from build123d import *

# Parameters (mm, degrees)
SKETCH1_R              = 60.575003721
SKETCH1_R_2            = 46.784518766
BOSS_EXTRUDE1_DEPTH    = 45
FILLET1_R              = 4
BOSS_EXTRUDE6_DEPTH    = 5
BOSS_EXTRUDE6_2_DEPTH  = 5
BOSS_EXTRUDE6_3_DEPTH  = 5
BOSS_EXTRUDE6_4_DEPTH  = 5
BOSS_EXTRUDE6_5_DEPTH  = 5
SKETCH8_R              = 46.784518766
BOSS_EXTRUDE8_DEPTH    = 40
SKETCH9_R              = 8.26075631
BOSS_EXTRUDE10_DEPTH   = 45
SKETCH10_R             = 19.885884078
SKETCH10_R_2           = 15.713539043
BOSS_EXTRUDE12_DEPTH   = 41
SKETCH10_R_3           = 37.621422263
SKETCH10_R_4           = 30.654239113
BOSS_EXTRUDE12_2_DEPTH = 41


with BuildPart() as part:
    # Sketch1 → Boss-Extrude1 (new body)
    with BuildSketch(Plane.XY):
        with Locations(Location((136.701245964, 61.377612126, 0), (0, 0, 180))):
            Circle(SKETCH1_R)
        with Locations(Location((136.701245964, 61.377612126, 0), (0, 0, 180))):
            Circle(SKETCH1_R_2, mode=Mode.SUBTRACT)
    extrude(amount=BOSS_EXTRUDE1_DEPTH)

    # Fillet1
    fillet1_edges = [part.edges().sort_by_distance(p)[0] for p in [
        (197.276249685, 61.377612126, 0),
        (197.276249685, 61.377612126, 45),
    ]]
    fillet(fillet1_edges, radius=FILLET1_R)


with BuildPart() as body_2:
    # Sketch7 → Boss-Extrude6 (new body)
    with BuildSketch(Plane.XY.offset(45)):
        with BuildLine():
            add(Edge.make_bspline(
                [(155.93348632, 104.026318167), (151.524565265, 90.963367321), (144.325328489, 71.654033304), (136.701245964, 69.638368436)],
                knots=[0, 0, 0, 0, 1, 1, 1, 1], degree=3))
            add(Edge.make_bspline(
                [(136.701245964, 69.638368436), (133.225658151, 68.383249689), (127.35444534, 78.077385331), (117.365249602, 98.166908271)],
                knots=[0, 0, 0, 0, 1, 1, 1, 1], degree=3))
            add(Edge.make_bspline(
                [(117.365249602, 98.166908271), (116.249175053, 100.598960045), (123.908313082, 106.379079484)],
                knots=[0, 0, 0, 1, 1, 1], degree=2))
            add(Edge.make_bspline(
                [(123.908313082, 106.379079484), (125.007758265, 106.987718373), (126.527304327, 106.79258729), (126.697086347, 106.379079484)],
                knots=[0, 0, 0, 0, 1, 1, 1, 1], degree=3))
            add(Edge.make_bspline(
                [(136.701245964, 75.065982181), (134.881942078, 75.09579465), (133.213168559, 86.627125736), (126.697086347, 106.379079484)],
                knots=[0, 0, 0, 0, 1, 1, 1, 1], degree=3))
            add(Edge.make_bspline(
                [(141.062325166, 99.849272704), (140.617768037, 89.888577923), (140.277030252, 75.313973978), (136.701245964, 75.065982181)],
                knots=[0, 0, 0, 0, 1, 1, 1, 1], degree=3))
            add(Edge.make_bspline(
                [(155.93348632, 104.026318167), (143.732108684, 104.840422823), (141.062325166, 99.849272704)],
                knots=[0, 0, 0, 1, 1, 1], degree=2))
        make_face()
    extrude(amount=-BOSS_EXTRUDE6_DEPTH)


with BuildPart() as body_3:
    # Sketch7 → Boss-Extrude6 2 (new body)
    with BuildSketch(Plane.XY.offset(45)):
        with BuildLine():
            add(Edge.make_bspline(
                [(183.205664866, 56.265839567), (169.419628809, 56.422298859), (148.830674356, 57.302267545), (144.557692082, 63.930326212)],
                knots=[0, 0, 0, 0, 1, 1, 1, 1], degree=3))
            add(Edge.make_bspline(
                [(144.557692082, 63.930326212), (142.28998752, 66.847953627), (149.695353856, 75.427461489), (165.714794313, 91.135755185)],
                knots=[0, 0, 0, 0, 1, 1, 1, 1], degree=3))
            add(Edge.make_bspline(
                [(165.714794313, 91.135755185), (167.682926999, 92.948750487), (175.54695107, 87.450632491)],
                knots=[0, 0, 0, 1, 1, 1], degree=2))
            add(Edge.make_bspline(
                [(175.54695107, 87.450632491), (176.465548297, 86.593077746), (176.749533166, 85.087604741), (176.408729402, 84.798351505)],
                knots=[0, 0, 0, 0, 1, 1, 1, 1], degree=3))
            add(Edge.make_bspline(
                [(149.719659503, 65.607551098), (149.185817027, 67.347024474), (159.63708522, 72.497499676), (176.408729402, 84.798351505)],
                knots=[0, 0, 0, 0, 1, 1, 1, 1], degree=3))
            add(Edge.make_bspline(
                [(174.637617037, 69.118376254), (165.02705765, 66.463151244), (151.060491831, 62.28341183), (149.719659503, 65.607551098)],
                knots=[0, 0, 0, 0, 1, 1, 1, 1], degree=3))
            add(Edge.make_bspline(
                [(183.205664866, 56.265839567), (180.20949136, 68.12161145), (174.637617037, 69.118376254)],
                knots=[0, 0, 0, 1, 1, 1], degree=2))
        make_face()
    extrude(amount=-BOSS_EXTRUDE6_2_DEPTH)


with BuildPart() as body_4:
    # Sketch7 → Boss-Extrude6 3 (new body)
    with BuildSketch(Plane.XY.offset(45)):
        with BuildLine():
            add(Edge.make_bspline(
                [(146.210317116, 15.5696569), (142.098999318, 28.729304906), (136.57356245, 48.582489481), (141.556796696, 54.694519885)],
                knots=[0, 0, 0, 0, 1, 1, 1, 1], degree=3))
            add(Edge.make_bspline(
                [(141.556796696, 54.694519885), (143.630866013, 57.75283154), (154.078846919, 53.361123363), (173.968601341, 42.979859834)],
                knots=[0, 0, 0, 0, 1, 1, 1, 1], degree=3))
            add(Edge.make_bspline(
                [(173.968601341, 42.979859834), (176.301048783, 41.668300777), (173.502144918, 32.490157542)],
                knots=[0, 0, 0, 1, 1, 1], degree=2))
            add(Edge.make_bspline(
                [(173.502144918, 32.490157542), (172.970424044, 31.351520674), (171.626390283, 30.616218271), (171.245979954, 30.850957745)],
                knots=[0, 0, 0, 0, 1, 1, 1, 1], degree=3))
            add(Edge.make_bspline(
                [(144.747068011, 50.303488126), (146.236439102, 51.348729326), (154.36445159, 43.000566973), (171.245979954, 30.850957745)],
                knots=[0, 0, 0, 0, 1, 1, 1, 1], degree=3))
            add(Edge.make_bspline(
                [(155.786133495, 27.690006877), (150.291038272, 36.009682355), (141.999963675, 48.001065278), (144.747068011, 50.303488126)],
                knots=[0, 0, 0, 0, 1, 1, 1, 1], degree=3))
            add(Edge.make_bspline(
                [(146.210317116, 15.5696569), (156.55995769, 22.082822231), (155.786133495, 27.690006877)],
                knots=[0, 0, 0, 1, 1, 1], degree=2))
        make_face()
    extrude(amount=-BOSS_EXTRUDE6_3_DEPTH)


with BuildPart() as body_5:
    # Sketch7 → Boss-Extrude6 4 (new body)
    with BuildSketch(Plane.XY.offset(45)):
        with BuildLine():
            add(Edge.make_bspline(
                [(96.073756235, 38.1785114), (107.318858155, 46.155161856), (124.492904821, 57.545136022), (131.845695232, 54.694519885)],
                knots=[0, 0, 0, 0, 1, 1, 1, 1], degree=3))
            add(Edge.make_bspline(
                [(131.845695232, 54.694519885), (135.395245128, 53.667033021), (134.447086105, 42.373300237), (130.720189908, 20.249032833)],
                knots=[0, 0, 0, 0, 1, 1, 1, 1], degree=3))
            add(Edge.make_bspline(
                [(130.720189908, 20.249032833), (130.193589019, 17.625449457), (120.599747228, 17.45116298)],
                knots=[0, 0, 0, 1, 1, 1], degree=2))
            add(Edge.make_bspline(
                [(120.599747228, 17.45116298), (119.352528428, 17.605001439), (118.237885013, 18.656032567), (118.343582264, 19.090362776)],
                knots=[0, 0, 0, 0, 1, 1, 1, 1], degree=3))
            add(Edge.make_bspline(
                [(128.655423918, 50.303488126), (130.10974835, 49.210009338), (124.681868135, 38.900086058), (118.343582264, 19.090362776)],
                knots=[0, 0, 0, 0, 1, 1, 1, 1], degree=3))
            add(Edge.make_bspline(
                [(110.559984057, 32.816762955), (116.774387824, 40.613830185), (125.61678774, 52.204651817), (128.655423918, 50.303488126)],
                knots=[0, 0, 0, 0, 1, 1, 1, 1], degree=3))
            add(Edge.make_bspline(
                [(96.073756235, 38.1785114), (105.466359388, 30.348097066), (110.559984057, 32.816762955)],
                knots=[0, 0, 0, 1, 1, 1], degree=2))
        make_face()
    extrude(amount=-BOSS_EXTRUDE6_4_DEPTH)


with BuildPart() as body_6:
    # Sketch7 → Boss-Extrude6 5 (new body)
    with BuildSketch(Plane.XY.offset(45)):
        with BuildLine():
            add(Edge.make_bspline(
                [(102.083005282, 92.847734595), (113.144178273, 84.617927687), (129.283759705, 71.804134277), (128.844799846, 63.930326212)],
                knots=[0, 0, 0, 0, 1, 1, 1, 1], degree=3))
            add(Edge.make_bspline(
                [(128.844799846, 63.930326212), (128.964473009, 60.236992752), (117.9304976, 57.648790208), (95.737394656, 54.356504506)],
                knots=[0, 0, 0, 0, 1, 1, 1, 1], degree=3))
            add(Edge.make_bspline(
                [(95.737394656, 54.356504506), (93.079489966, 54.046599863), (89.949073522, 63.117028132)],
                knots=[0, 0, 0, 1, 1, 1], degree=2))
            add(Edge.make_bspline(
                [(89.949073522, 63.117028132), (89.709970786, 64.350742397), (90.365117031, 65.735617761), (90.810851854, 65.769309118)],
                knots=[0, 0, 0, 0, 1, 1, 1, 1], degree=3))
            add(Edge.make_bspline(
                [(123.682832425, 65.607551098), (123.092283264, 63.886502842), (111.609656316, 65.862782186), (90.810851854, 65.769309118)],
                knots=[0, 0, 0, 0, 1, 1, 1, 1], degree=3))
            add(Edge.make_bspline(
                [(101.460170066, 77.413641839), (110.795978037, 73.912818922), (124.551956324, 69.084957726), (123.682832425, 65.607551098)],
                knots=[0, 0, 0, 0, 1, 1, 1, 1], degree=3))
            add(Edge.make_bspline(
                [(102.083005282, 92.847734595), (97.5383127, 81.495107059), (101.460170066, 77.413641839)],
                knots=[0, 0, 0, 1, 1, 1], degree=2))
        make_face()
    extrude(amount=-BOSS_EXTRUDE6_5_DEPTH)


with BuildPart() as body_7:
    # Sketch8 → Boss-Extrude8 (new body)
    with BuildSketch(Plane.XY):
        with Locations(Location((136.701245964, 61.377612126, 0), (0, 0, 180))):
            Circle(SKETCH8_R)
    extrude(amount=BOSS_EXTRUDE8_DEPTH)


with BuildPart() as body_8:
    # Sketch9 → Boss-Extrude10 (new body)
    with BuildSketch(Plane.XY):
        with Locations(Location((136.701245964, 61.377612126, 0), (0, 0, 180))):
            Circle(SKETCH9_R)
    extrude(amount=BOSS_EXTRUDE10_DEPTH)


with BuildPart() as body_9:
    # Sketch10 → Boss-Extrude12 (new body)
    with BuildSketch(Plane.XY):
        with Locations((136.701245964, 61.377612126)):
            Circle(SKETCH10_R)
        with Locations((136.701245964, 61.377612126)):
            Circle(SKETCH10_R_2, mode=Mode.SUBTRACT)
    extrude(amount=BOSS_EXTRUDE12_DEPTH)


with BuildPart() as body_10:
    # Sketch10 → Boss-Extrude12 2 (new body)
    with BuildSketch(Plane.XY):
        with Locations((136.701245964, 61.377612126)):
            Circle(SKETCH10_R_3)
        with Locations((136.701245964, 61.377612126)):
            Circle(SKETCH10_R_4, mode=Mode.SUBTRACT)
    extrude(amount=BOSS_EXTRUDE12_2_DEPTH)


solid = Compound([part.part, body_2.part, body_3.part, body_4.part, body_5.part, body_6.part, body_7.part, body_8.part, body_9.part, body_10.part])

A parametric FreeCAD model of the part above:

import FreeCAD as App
import Part
import Sketcher


def edges_at(feature, points):
    """Names of the edges that pass closest to the given points."""
    edges = feature.Shape.Edges
    near = lambda p: min(range(len(edges)), key=lambda i: edges[i].distToShape(Part.Vertex(*p))[0])
    return sorted({f"Edge{near(p) + 1}" for p in points})

doc = App.newDocument("Part")
body = doc.addObject("PartDesign::Body", "Body")

# Sketch on XY plane
sketch1 = body.newObject("Sketcher::SketchObject", "Sketch")
sketch1.AttachmentSupport = (doc.getObject("XY_Plane"), [""])
sketch1.MapMode = "FlatFace"
sketch1.addGeometry([
    Part.Circle(App.Vector(137, 61, 0), App.Vector(0, 0, 1), 61),
    Part.Circle(App.Vector(137, 61, 0), App.Vector(0, 0, 1), 47),
], False)
sketch1.addConstraint([
    Sketcher.Constraint("Coincident", 1, 3, 0, 3),
    Sketcher.Constraint("Diameter", 0, 121.150007),
    Sketcher.Constraint("Diameter", 1, 93.569038),
    Sketcher.Constraint("DistanceX", -1, 1, 0, 3, 136.701246),
    Sketcher.Constraint("DistanceY", -1, 1, 0, 3, 61.377612),
])
pad1 = body.newObject("PartDesign::Pad", "Pad")
pad1.Profile = sketch1
pad1.Length = 45
doc.recompute()

fillet = body.newObject("PartDesign::Fillet", "Fillet")
fillet.Base = (pad1, edges_at(pad1, [(197.276, 61.378, 0), (197.276, 61.378, 45)]))
fillet.Radius = 4
body2 = doc.addObject("PartDesign::Body", "Body001")

# Sketch on XY plane
sketch2 = body2.newObject("Sketcher::SketchObject", "Sketch001")
sketch2.AttachmentSupport = (doc.getObject("XY_Plane001"), [""])
sketch2.MapMode = "FlatFace"
sketch2.AttachmentOffset = App.Placement(App.Vector(0, 0, 45), App.Rotation())
sketch2.addGeometry([
    Part.BSplineCurve([App.Vector(155.933486, 104.026318, 0), App.Vector(151.524565, 90.963367, 0), App.Vector(144.325328, 71.654033, 0), App.Vector(136.701246, 69.638368, 0)], [4, 4], [0, 1], False, 3, [1, 1, 1, 1], False),  # 0
    Part.BSplineCurve([App.Vector(155.933486, 104.026318, 0), App.Vector(143.732109, 104.840423, 0), App.Vector(141.062325, 99.849273, 0)], [3, 3], [0, 1], False, 2, [1, 1, 1], False),  # 1
    Part.BSplineCurve([App.Vector(141.062325, 99.849273, 0), App.Vector(140.617768, 89.888578, 0), App.Vector(140.27703, 75.313974, 0), App.Vector(136.701246, 75.065982, 0)], [4, 4], [0, 1], False, 3, [1, 1, 1, 1], False),  # 2
    Part.BSplineCurve([App.Vector(136.701246, 75.065982, 0), App.Vector(134.881942, 75.095795, 0), App.Vector(133.213169, 86.627126, 0), App.Vector(126.697086, 106.379079, 0)], [4, 4], [0, 1], False, 3, [1, 1, 1, 1], False),  # 3
    Part.BSplineCurve([App.Vector(123.908313, 106.379079, 0), App.Vector(125.007758, 106.987718, 0), App.Vector(126.527304, 106.792587, 0), App.Vector(126.697086, 106.379079, 0)], [4, 4], [0, 1], False, 3, [1, 1, 1, 1], False),  # 4
    Part.BSplineCurve([App.Vector(117.36525, 98.166908, 0), App.Vector(116.249175, 100.59896, 0), App.Vector(123.908313, 106.379079, 0)], [3, 3], [0, 1], False, 2, [1, 1, 1], False),  # 5
    Part.BSplineCurve([App.Vector(136.701246, 69.638368, 0), App.Vector(133.225658, 68.38325, 0), App.Vector(127.354445, 78.077385, 0), App.Vector(117.36525, 98.166908, 0)], [4, 4], [0, 1], False, 3, [1, 1, 1, 1], False),  # 6
], False)
sketch2.addConstraint([
    Sketcher.Constraint("Block", 0),
    Sketcher.Constraint("Block", 1),
    Sketcher.Constraint("Block", 2),
    Sketcher.Constraint("Block", 3),
    Sketcher.Constraint("Block", 4),
    Sketcher.Constraint("Block", 5),
    Sketcher.Constraint("Block", 6),
])
pad2 = body2.newObject("PartDesign::Pad", "Pad001")
pad2.Profile = sketch2
pad2.Length = 5
pad2.Reversed = True
body3 = doc.addObject("PartDesign::Body", "Body002")

# Sketch on XY plane
sketch3 = body3.newObject("Sketcher::SketchObject", "Sketch002")
sketch3.AttachmentSupport = (doc.getObject("XY_Plane002"), [""])
sketch3.MapMode = "FlatFace"
sketch3.AttachmentOffset = App.Placement(App.Vector(0, 0, 45), App.Rotation())
sketch3.addGeometry([
    Part.BSplineCurve([App.Vector(183.205665, 56.26584, 0), App.Vector(169.419629, 56.422299, 0), App.Vector(148.830674, 57.302268, 0), App.Vector(144.557692, 63.930326, 0)], [4, 4], [0, 1], False, 3, [1, 1, 1, 1], False),  # 0
    Part.BSplineCurve([App.Vector(183.205665, 56.26584, 0), App.Vector(180.209491, 68.121611, 0), App.Vector(174.637617, 69.118376, 0)], [3, 3], [0, 1], False, 2, [1, 1, 1], False),  # 1
    Part.BSplineCurve([App.Vector(174.637617, 69.118376, 0), App.Vector(165.027058, 66.463151, 0), App.Vector(151.060492, 62.283412, 0), App.Vector(149.71966, 65.607551, 0)], [4, 4], [0, 1], False, 3, [1, 1, 1, 1], False),  # 2
    Part.BSplineCurve([App.Vector(149.71966, 65.607551, 0), App.Vector(149.185817, 67.347024, 0), App.Vector(159.637085, 72.4975, 0), App.Vector(176.408729, 84.798352, 0)], [4, 4], [0, 1], False, 3, [1, 1, 1, 1], False),  # 3
    Part.BSplineCurve([App.Vector(175.546951, 87.450632, 0), App.Vector(176.465548, 86.593078, 0), App.Vector(176.749533, 85.087605, 0), App.Vector(176.408729, 84.798352, 0)], [4, 4], [0, 1], False, 3, [1, 1, 1, 1], False),  # 4
    Part.BSplineCurve([App.Vector(165.714794, 91.135755, 0), App.Vector(167.682927, 92.94875, 0), App.Vector(175.546951, 87.450632, 0)], [3, 3], [0, 1], False, 2, [1, 1, 1], False),  # 5
    Part.BSplineCurve([App.Vector(144.557692, 63.930326, 0), App.Vector(142.289988, 66.847954, 0), App.Vector(149.695354, 75.427461, 0), App.Vector(165.714794, 91.135755, 0)], [4, 4], [0, 1], False, 3, [1, 1, 1, 1], False),  # 6
], False)
sketch3.addConstraint([
    Sketcher.Constraint("Block", 0),
    Sketcher.Constraint("Block", 1),
    Sketcher.Constraint("Block", 2),
    Sketcher.Constraint("Block", 3),
    Sketcher.Constraint("Block", 4),
    Sketcher.Constraint("Block", 5),
    Sketcher.Constraint("Block", 6),
])
pad3 = body3.newObject("PartDesign::Pad", "Pad002")
pad3.Profile = sketch3
pad3.Length = 5
pad3.Reversed = True
body4 = doc.addObject("PartDesign::Body", "Body003")

# Sketch on XY plane
sketch4 = body4.newObject("Sketcher::SketchObject", "Sketch003")
sketch4.AttachmentSupport = (doc.getObject("XY_Plane003"), [""])
sketch4.MapMode = "FlatFace"
sketch4.AttachmentOffset = App.Placement(App.Vector(0, 0, 45), App.Rotation())
sketch4.addGeometry([
    Part.BSplineCurve([App.Vector(146.210317, 15.569657, 0), App.Vector(142.098999, 28.729305, 0), App.Vector(136.573562, 48.582489, 0), App.Vector(141.556797, 54.69452, 0)], [4, 4], [0, 1], False, 3, [1, 1, 1, 1], False),  # 0
    Part.BSplineCurve([App.Vector(146.210317, 15.569657, 0), App.Vector(156.559958, 22.082822, 0), App.Vector(155.786133, 27.690007, 0)], [3, 3], [0, 1], False, 2, [1, 1, 1], False),  # 1
    Part.BSplineCurve([App.Vector(155.786133, 27.690007, 0), App.Vector(150.291038, 36.009682, 0), App.Vector(141.999964, 48.001065, 0), App.Vector(144.747068, 50.303488, 0)], [4, 4], [0, 1], False, 3, [1, 1, 1, 1], False),  # 2
    Part.BSplineCurve([App.Vector(144.747068, 50.303488, 0), App.Vector(146.236439, 51.348729, 0), App.Vector(154.364452, 43.000567, 0), App.Vector(171.24598, 30.850958, 0)], [4, 4], [0, 1], False, 3, [1, 1, 1, 1], False),  # 3
    Part.BSplineCurve([App.Vector(173.502145, 32.490158, 0), App.Vector(172.970424, 31.351521, 0), App.Vector(171.62639, 30.616218, 0), App.Vector(171.24598, 30.850958, 0)], [4, 4], [0, 1], False, 3, [1, 1, 1, 1], False),  # 4
    Part.BSplineCurve([App.Vector(173.968601, 42.97986, 0), App.Vector(176.301049, 41.668301, 0), App.Vector(173.502145, 32.490158, 0)], [3, 3], [0, 1], False, 2, [1, 1, 1], False),  # 5
    Part.BSplineCurve([App.Vector(141.556797, 54.69452, 0), App.Vector(143.630866, 57.752832, 0), App.Vector(154.078847, 53.361123, 0), App.Vector(173.968601, 42.97986, 0)], [4, 4], [0, 1], False, 3, [1, 1, 1, 1], False),  # 6
], False)
sketch4.addConstraint([
    Sketcher.Constraint("Block", 0),
    Sketcher.Constraint("Block", 1),
    Sketcher.Constraint("Block", 2),
    Sketcher.Constraint("Block", 3),
    Sketcher.Constraint("Block", 4),
    Sketcher.Constraint("Block", 5),
    Sketcher.Constraint("Block", 6),
])
pad4 = body4.newObject("PartDesign::Pad", "Pad003")
pad4.Profile = sketch4
pad4.Length = 5
pad4.Reversed = True
body5 = doc.addObject("PartDesign::Body", "Body004")

# Sketch on XY plane
sketch5 = body5.newObject("Sketcher::SketchObject", "Sketch004")
sketch5.AttachmentSupport = (doc.getObject("XY_Plane004"), [""])
sketch5.MapMode = "FlatFace"
sketch5.AttachmentOffset = App.Placement(App.Vector(0, 0, 45), App.Rotation())
sketch5.addGeometry([
    Part.BSplineCurve([App.Vector(96.073756, 38.178511, 0), App.Vector(107.318858, 46.155162, 0), App.Vector(124.492905, 57.545136, 0), App.Vector(131.845695, 54.69452, 0)], [4, 4], [0, 1], False, 3, [1, 1, 1, 1], False),  # 0
    Part.BSplineCurve([App.Vector(96.073756, 38.178511, 0), App.Vector(105.466359, 30.348097, 0), App.Vector(110.559984, 32.816763, 0)], [3, 3], [0, 1], False, 2, [1, 1, 1], False),  # 1
    Part.BSplineCurve([App.Vector(110.559984, 32.816763, 0), App.Vector(116.774388, 40.61383, 0), App.Vector(125.616788, 52.204652, 0), App.Vector(128.655424, 50.303488, 0)], [4, 4], [0, 1], False, 3, [1, 1, 1, 1], False),  # 2
    Part.BSplineCurve([App.Vector(128.655424, 50.303488, 0), App.Vector(130.109748, 49.210009, 0), App.Vector(124.681868, 38.900086, 0), App.Vector(118.343582, 19.090363, 0)], [4, 4], [0, 1], False, 3, [1, 1, 1, 1], False),  # 3
    Part.BSplineCurve([App.Vector(120.599747, 17.451163, 0), App.Vector(119.352528, 17.605001, 0), App.Vector(118.237885, 18.656033, 0), App.Vector(118.343582, 19.090363, 0)], [4, 4], [0, 1], False, 3, [1, 1, 1, 1], False),  # 4
    Part.BSplineCurve([App.Vector(130.72019, 20.249033, 0), App.Vector(130.193589, 17.625449, 0), App.Vector(120.599747, 17.451163, 0)], [3, 3], [0, 1], False, 2, [1, 1, 1], False),  # 5
    Part.BSplineCurve([App.Vector(131.845695, 54.69452, 0), App.Vector(135.395245, 53.667033, 0), App.Vector(134.447086, 42.3733, 0), App.Vector(130.72019, 20.249033, 0)], [4, 4], [0, 1], False, 3, [1, 1, 1, 1], False),  # 6
], False)
sketch5.addConstraint([
    Sketcher.Constraint("Block", 0),
    Sketcher.Constraint("Block", 1),
    Sketcher.Constraint("Block", 2),
    Sketcher.Constraint("Block", 3),
    Sketcher.Constraint("Block", 4),
    Sketcher.Constraint("Block", 5),
    Sketcher.Constraint("Block", 6),
])
pad5 = body5.newObject("PartDesign::Pad", "Pad004")
pad5.Profile = sketch5
pad5.Length = 5
pad5.Reversed = True
body6 = doc.addObject("PartDesign::Body", "Body005")

# Sketch on XY plane
sketch6 = body6.newObject("Sketcher::SketchObject", "Sketch005")
sketch6.AttachmentSupport = (doc.getObject("XY_Plane005"), [""])
sketch6.MapMode = "FlatFace"
sketch6.AttachmentOffset = App.Placement(App.Vector(0, 0, 45), App.Rotation())
sketch6.addGeometry([
    Part.BSplineCurve([App.Vector(102.083005, 92.847735, 0), App.Vector(113.144178, 84.617928, 0), App.Vector(129.28376, 71.804134, 0), App.Vector(128.8448, 63.930326, 0)], [4, 4], [0, 1], False, 3, [1, 1, 1, 1], False),  # 0
    Part.BSplineCurve([App.Vector(102.083005, 92.847735, 0), App.Vector(97.538313, 81.495107, 0), App.Vector(101.46017, 77.413642, 0)], [3, 3], [0, 1], False, 2, [1, 1, 1], False),  # 1
    Part.BSplineCurve([App.Vector(101.46017, 77.413642, 0), App.Vector(110.795978, 73.912819, 0), App.Vector(124.551956, 69.084958, 0), App.Vector(123.682832, 65.607551, 0)], [4, 4], [0, 1], False, 3, [1, 1, 1, 1], False),  # 2
    Part.BSplineCurve([App.Vector(123.682832, 65.607551, 0), App.Vector(123.092283, 63.886503, 0), App.Vector(111.609656, 65.862782, 0), App.Vector(90.810852, 65.769309, 0)], [4, 4], [0, 1], False, 3, [1, 1, 1, 1], False),  # 3
    Part.BSplineCurve([App.Vector(89.949074, 63.117028, 0), App.Vector(89.709971, 64.350742, 0), App.Vector(90.365117, 65.735618, 0), App.Vector(90.810852, 65.769309, 0)], [4, 4], [0, 1], False, 3, [1, 1, 1, 1], False),  # 4
    Part.BSplineCurve([App.Vector(95.737395, 54.356505, 0), App.Vector(93.07949, 54.0466, 0), App.Vector(89.949074, 63.117028, 0)], [3, 3], [0, 1], False, 2, [1, 1, 1], False),  # 5
    Part.BSplineCurve([App.Vector(128.8448, 63.930326, 0), App.Vector(128.964473, 60.236993, 0), App.Vector(117.930498, 57.64879, 0), App.Vector(95.737395, 54.356505, 0)], [4, 4], [0, 1], False, 3, [1, 1, 1, 1], False),  # 6
], False)
sketch6.addConstraint([
    Sketcher.Constraint("Block", 0),
    Sketcher.Constraint("Block", 1),
    Sketcher.Constraint("Block", 2),
    Sketcher.Constraint("Block", 3),
    Sketcher.Constraint("Block", 4),
    Sketcher.Constraint("Block", 5),
    Sketcher.Constraint("Block", 6),
])
pad6 = body6.newObject("PartDesign::Pad", "Pad005")
pad6.Profile = sketch6
pad6.Length = 5
pad6.Reversed = True
body7 = doc.addObject("PartDesign::Body", "Body006")

# Sketch on XY plane
sketch7 = body7.newObject("Sketcher::SketchObject", "Sketch006")
sketch7.AttachmentSupport = (doc.getObject("XY_Plane006"), [""])
sketch7.MapMode = "FlatFace"
sketch7.addGeometry(Part.Circle(App.Vector(137, 61, 0), App.Vector(0, 0, 1), 47), False)
sketch7.addConstraint([
    Sketcher.Constraint("Diameter", 0, 93.569038),
    Sketcher.Constraint("DistanceX", -1, 1, 0, 3, 136.701246),
    Sketcher.Constraint("DistanceY", -1, 1, 0, 3, 61.377612),
])
pad7 = body7.newObject("PartDesign::Pad", "Pad006")
pad7.Profile = sketch7
pad7.Length = 40
body8 = doc.addObject("PartDesign::Body", "Body007")

# Sketch on XY plane
sketch8 = body8.newObject("Sketcher::SketchObject", "Sketch007")
sketch8.AttachmentSupport = (doc.getObject("XY_Plane007"), [""])
sketch8.MapMode = "FlatFace"
sketch8.addGeometry(Part.Circle(App.Vector(137, 61, 0), App.Vector(0, 0, 1), 8), False)
sketch8.addConstraint([
    Sketcher.Constraint("Diameter", 0, 16.521513),
    Sketcher.Constraint("DistanceX", -1, 1, 0, 3, 136.701246),
    Sketcher.Constraint("DistanceY", -1, 1, 0, 3, 61.377612),
])
pad8 = body8.newObject("PartDesign::Pad", "Pad007")
pad8.Profile = sketch8
pad8.Length = 45
body9 = doc.addObject("PartDesign::Body", "Body008")

# Sketch on XY plane
sketch9 = body9.newObject("Sketcher::SketchObject", "Sketch008")
sketch9.AttachmentSupport = (doc.getObject("XY_Plane008"), [""])
sketch9.MapMode = "FlatFace"
sketch9.addGeometry([
    Part.Circle(App.Vector(137, 61, 0), App.Vector(0, 0, 1), 20),
    Part.Circle(App.Vector(137, 61, 0), App.Vector(0, 0, 1), 16),
], False)
sketch9.addConstraint([
    Sketcher.Constraint("Coincident", 1, 3, 0, 3),
    Sketcher.Constraint("Diameter", 0, 39.771768),
    Sketcher.Constraint("Diameter", 1, 31.427078),
    Sketcher.Constraint("DistanceX", -1, 1, 0, 3, 136.701246),
    Sketcher.Constraint("DistanceY", -1, 1, 0, 3, 61.377612),
])
pad9 = body9.newObject("PartDesign::Pad", "Pad008")
pad9.Profile = sketch9
pad9.Length = 41
body10 = doc.addObject("PartDesign::Body", "Body009")

# Sketch on XY plane
sketch10 = body10.newObject("Sketcher::SketchObject", "Sketch009")
sketch10.AttachmentSupport = (doc.getObject("XY_Plane009"), [""])
sketch10.MapMode = "FlatFace"
sketch10.addGeometry([
    Part.Circle(App.Vector(137, 61, 0), App.Vector(0, 0, 1), 38),
    Part.Circle(App.Vector(137, 61, 0), App.Vector(0, 0, 1), 31),
], False)
sketch10.addConstraint([
    Sketcher.Constraint("Coincident", 1, 3, 0, 3),
    Sketcher.Constraint("Diameter", 1, 61.308478),
    Sketcher.Constraint("Diameter", 0, 75.242845),
    Sketcher.Constraint("DistanceX", -1, 1, 0, 3, 136.701246),
    Sketcher.Constraint("DistanceY", -1, 1, 0, 3, 61.377612),
])
pad10 = body10.newObject("PartDesign::Pad", "Pad009")
pad10.Profile = sketch10
pad10.Length = 41

doc.recompute()
